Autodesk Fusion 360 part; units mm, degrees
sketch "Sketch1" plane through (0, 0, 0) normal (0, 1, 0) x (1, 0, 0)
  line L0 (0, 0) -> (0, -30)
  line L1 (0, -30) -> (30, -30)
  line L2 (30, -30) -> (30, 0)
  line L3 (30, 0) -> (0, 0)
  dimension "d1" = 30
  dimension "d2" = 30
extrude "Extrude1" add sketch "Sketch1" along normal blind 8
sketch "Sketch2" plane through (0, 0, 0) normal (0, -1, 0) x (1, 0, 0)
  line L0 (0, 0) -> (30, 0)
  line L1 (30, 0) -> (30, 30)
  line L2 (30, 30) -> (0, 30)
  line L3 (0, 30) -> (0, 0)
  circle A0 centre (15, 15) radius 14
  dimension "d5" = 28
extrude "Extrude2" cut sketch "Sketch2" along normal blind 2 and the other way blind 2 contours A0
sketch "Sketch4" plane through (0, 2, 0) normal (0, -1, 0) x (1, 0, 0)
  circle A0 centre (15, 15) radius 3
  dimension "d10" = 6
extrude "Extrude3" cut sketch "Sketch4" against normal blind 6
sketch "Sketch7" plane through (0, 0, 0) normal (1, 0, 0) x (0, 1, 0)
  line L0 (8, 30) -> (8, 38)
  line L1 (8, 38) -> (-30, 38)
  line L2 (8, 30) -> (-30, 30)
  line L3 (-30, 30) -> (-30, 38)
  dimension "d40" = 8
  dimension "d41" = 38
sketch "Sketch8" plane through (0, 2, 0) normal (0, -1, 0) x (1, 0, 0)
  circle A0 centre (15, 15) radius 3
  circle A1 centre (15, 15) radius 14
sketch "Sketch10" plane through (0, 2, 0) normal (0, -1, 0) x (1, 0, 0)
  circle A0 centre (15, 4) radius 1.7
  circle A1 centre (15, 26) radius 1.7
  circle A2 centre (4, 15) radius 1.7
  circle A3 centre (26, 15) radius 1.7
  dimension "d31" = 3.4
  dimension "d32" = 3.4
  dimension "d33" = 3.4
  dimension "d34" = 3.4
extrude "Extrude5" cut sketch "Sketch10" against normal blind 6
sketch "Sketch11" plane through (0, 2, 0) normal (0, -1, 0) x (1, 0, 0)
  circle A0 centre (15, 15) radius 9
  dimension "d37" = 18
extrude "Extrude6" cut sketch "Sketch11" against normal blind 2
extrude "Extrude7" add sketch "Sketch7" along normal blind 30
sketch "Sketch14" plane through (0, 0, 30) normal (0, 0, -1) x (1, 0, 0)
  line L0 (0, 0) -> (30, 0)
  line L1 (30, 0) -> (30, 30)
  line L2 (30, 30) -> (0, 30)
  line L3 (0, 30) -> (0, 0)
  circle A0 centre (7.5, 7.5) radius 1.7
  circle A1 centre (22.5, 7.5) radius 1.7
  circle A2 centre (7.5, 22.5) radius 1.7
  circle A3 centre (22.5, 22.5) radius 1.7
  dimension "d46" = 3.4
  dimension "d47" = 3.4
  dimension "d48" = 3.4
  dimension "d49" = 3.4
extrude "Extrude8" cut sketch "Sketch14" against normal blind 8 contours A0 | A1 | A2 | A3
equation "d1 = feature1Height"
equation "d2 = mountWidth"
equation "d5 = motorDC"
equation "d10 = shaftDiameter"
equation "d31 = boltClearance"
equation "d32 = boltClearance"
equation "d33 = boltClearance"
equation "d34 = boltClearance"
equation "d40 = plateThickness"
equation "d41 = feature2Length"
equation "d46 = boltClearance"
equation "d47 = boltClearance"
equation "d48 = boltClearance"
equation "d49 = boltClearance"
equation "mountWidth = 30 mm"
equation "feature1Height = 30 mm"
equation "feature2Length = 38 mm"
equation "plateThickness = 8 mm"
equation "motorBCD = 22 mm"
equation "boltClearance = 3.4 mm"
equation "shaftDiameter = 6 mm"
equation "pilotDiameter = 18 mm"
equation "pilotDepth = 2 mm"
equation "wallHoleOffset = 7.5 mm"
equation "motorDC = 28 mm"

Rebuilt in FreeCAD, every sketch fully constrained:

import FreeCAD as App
import Part
import Sketcher

V = App.Vector


def add_polygon(sketch, points):
    """Adds a closed chain of lines whose ends are joined by coincident constraints."""
    first, n = sketch.GeometryCount, len(points)
    for a, b in zip(points, points[1:] + points[:1]):
        sketch.addGeometry(Part.LineSegment(App.Vector(*a, 0), App.Vector(*b, 0)), False)
    for i in range(n):
        sketch.addConstraint(Sketcher.Constraint("Coincident", first + i, 2, first + (i + 1) % n, 1))

doc = App.newDocument("Part")
params = doc.addObject("Spreadsheet::Sheet", "Params")
for row, (alias, value) in enumerate([
    ("sketch1_width", "30 mm"),
    ("pad1_length", "8 mm"),
    ("sketch2_diameter", "28 mm"),
    ("pocket1_length", "2 mm"),
    ("pocket1_length2", "2 mm"),
    ("sketch3_diameter", "6 mm"),
    ("pocket2_length", "6 mm"),
    ("sketch4_diameter", "3.4 mm"),
    ("pocket3_length", "6 mm"),
    ("sketch5_diameter", "18 mm"),
    ("pocket4_length", "2 mm"),
    ("sketch6_width", "38 mm"),
    ("sketch6_height", "8 mm"),
    ("pad2_length", "30 mm"),
    ("sketch7_diameter", "3.4 mm"),
    ("pocket5_length", "8 mm"),
], start=1):
    params.set(f"A{row}", alias)
    params.set(f"B{row}", "=" + value)
    params.setAlias(f"B{row}", alias)

body = doc.addObject("PartDesign::Body", "Body")

sketch1 = body.newObject("Sketcher::SketchObject", "Sketch")
sketch1.AttachmentSupport = (doc.getObject("XZ_Plane"), [""])
sketch1.MapMode = "FlatFace"
add_polygon(sketch1, [(30, 0), (0, 0), (0, 30), (30, 30)])
sketch1.addConstraint([
    Sketcher.Constraint("Horizontal", 0),
    Sketcher.Constraint("Vertical", 1),
    Sketcher.Constraint("Horizontal", 2),
    Sketcher.Constraint("Vertical", 3),
    Sketcher.Constraint("Coincident", 0, 2, -1, 1),
    Sketcher.Constraint("Equal", 2, 1),
    Sketcher.Constraint("DistanceX", 0, 2, 0, 1, 30.0),
])
sketch1.setExpression("Constraints[10]", "Params.sketch1_width")
pad1 = body.newObject("PartDesign::Pad", "Pad")
pad1.Profile = sketch1
pad1.setExpression("Length", "Params.pad1_length")
pad1.Reversed = True

sketch2 = body.newObject("Sketcher::SketchObject", "Sketch001")
sketch2.AttachmentSupport = (doc.getObject("XZ_Plane"), [""])
sketch2.MapMode = "FlatFace"
sketch2.addGeometry(Part.Circle(V(15, 15, 0), V(0, 0, 1), 14), False)
sketch2.addConstraint([
    Sketcher.Constraint("Diameter", 0, 28.0),
    Sketcher.Constraint("DistanceX", -1, 1, 0, 3, 15.0),
    Sketcher.Constraint("DistanceY", -1, 1, 0, 3, 15.0),
])
sketch2.setExpression("Constraints[0]", "Params.sketch2_diameter")
pocket1 = body.newObject("PartDesign::Pocket", "Pocket")
pocket1.Profile = sketch2
pocket1.Type = "TwoLengths"
pocket1.setExpression("Length", "Params.pocket1_length")
pocket1.setExpression("Length2", "Params.pocket1_length2")
pocket1.Reversed = True

sketch3 = body.newObject("Sketcher::SketchObject", "Sketch002")
sketch3.AttachmentSupport = (doc.getObject("XZ_Plane"), [""])
sketch3.MapMode = "FlatFace"
sketch3.AttachmentOffset = App.Placement(V(0, 0, -2), App.Rotation())
sketch3.addGeometry(Part.Circle(V(15, 15, 0), V(0, 0, 1), 3), False)
sketch3.addConstraint([
    Sketcher.Constraint("Diameter", 0, 6.0),
    Sketcher.Constraint("DistanceX", -1, 1, 0, 3, 15.0),
    Sketcher.Constraint("DistanceY", -1, 1, 0, 3, 15.0),
])
sketch3.setExpression("Constraints[0]", "Params.sketch3_diameter")
pocket2 = body.newObject("PartDesign::Pocket", "Pocket001")
pocket2.Profile = sketch3
pocket2.setExpression("Length", "Params.pocket2_length")

sketch4 = body.newObject("Sketcher::SketchObject", "Sketch003")
sketch4.AttachmentSupport = (doc.getObject("XZ_Plane"), [""])
sketch4.MapMode = "FlatFace"
sketch4.AttachmentOffset = App.Placement(V(0, 0, -2), App.Rotation())
sketch4.addGeometry([
    Part.Circle(V(15, 4, 0), V(0, 0, 1), 1.7),
    Part.Circle(V(15, 26, 0), V(0, 0, 1), 1.7),
    Part.Circle(V(4, 15, 0), V(0, 0, 1), 1.7),
    Part.Circle(V(26, 15, 0), V(0, 0, 1), 1.7),
], False)
sketch4.addConstraint([
    Sketcher.Constraint("Equal", 0, 1),
    Sketcher.Constraint("Equal", 1, 2),
    Sketcher.Constraint("Equal", 2, 3),
    Sketcher.Constraint("Horizontal", 2, 3, 3, 3),
    Sketcher.Constraint("Vertical", 0, 3, 1, 3),
    Sketcher.Constraint("Diameter", 0, 3.4),
    Sketcher.Constraint("DistanceX", -1, 1, 0, 3, 15.0),
    Sketcher.Constraint("DistanceY", -1, 1, 0, 3, 4.0),
    Sketcher.Constraint("DistanceY", -1, 1, 1, 3, 26.0),
    Sketcher.Constraint("DistanceX", -1, 1, 2, 3, 4.0),
    Sketcher.Constraint("DistanceY", -1, 1, 2, 3, 15.0),
    Sketcher.Constraint("DistanceX", -1, 1, 3, 3, 26.0),
])
sketch4.setExpression("Constraints[5]", "Params.sketch4_diameter")
pocket3 = body.newObject("PartDesign::Pocket", "Pocket002")
pocket3.Profile = sketch4
pocket3.setExpression("Length", "Params.pocket3_length")

sketch5 = body.newObject("Sketcher::SketchObject", "Sketch004")
sketch5.AttachmentSupport = (doc.getObject("XZ_Plane"), [""])
sketch5.MapMode = "FlatFace"
sketch5.AttachmentOffset = App.Placement(V(0, 0, -2), App.Rotation())
sketch5.addGeometry(Part.Circle(V(15, 15, 0), V(0, 0, 1), 9), False)
sketch5.addConstraint([
    Sketcher.Constraint("Diameter", 0, 18.0),
    Sketcher.Constraint("DistanceX", -1, 1, 0, 3, 15.0),
    Sketcher.Constraint("DistanceY", -1, 1, 0, 3, 15.0),
])
sketch5.setExpression("Constraints[0]", "Params.sketch5_diameter")
pocket4 = body.newObject("PartDesign::Pocket", "Pocket003")
pocket4.Profile = sketch5
pocket4.setExpression("Length", "Params.pocket4_length")

sketch6 = body.newObject("Sketcher::SketchObject", "Sketch005")
sketch6.AttachmentSupport = (doc.getObject("YZ_Plane"), [""])
sketch6.MapMode = "FlatFace"
add_polygon(sketch6, [(-30, 30), (8, 30), (8, 38), (-30, 38)])
sketch6.addConstraint([
    Sketcher.Constraint("Horizontal", 0),
    Sketcher.Constraint("Vertical", 1),
    Sketcher.Constraint("Horizontal", 2),
    Sketcher.Constraint("Vertical", 3),
    Sketcher.Constraint("DistanceX", 0, 1, 0, 2, 38.0),
    Sketcher.Constraint("DistanceY", 1, 1, 1, 2, 8.0),
    Sketcher.Constraint("DistanceX", -1, 1, 0, 2, 8.0),
    Sketcher.Constraint("DistanceY", -1, 1, 1, 2, 38.0),
])
sketch6.setExpression("Constraints[8]", "Params.sketch6_width")
sketch6.setExpression("Constraints[9]", "Params.sketch6_height")
pad2 = body.newObject("PartDesign::Pad", "Pad001")
pad2.Profile = sketch6
pad2.setExpression("Length", "Params.pad2_length")

sketch7 = body.newObject("Sketcher::SketchObject", "Sketch006")
sketch7.AttachmentSupport = (doc.getObject("XY_Plane"), [""])
sketch7.MapMode = "FlatFace"
sketch7.AttachmentOffset = App.Placement(V(0, 0, 30), App.Rotation())
sketch7.addGeometry([
    Part.Circle(V(7.5, -7.5, 0), V(0, 0, 1), 1.7),
    Part.Circle(V(22.5, -7.5, 0), V(0, 0, 1), 1.7),
    Part.Circle(V(7.5, -22.5, 0), V(0, 0, 1), 1.7),
    Part.Circle(V(22.5, -22.5, 0), V(0, 0, 1), 1.7),
], False)
sketch7.addConstraint([
    Sketcher.Constraint("Equal", 0, 1),
    Sketcher.Constraint("Equal", 1, 2),
    Sketcher.Constraint("Equal", 2, 3),
    Sketcher.Constraint("Horizontal", 0, 3, 1, 3),
    Sketcher.Constraint("Horizontal", 2, 3, 3, 3),
    Sketcher.Constraint("Vertical", 0, 3, 2, 3),
    Sketcher.Constraint("Vertical", 1, 3, 3, 3),
    Sketcher.Constraint("Diameter", 0, 3.4),
    Sketcher.Constraint("DistanceX", 0, 3, 1, 3, 15.0),
    Sketcher.Constraint("DistanceY", 2, 3, 0, 3, 15.0),
    Sketcher.Constraint("DistanceX", -1, 1, 0, 3, 7.5),
    Sketcher.Constraint("DistanceY", 0, 3, -1, 1, 7.5),
])
sketch7.setExpression("Constraints[7]", "Params.sketch7_diameter")
pocket5 = body.newObject("PartDesign::Pocket", "Pocket004")
pocket5.Profile = sketch7
pocket5.setExpression("Length", "Params.pocket5_length")
pocket5.Reversed = True

doc.recompute()
